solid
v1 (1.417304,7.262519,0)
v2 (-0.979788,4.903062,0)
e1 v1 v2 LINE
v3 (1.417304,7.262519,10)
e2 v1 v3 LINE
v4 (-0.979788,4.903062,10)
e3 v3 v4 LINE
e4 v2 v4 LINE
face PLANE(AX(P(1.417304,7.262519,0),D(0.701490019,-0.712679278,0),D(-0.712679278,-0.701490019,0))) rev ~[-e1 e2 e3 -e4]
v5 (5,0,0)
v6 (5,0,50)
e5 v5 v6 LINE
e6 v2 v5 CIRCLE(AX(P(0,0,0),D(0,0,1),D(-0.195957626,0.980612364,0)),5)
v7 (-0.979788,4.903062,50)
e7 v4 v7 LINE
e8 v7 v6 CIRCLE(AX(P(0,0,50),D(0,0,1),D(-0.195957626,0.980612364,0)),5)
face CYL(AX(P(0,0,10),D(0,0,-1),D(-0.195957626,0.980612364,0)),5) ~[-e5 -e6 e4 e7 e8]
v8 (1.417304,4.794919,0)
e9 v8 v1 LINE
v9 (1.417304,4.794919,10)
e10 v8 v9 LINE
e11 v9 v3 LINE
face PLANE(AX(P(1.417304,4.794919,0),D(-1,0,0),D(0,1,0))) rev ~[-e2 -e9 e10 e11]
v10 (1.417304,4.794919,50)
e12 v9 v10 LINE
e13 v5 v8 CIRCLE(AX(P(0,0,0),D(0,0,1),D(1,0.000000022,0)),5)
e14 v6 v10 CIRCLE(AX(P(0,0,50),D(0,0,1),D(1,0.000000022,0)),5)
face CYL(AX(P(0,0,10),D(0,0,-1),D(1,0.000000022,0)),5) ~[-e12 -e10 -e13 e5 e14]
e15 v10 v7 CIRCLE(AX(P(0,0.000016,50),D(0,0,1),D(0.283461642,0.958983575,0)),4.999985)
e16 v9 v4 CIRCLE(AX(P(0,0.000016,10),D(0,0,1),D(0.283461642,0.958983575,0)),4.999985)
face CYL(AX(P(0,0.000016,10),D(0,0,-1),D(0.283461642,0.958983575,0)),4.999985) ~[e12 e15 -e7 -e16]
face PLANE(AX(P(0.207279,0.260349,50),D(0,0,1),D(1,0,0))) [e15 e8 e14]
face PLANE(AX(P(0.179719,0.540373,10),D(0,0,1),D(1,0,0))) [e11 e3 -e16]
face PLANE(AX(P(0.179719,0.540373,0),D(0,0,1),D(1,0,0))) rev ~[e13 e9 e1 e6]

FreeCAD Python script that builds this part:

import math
import FreeCAD as App
import Part
import Sketcher

V = App.Vector
Q = App.Units.Quantity

doc = App.newDocument("Part")
body = doc.addObject("PartDesign::Body", "Body")

sketch1 = body.newObject("Sketcher::SketchObject", "Sketch")
sketch1.AttachmentSupport = (doc.getObject("XY_Plane"), [""])
sketch1.MapMode = "FlatFace"
sketch1.addGeometry([
    Part.ArcOfCircle(Part.Circle(V(0, 0, 0), V(0, 0, 1), 5), math.radians(101), math.radians(360)),
    Part.ArcOfCircle(Part.Circle(V(0, 0, 0), V(0, 0, 1), 5), math.radians(0), math.radians(74)),
    Part.LineSegment(V(1.4, 4.8, 0), V(1.4, 7.3, 0)),
    Part.LineSegment(V(1.4, 7.3, 0), V(-1, 4.9, 0)),
], False)
sketch1.addConstraint([
    Sketcher.Constraint("Tangent", 0, 2, 1, 1),
    Sketcher.Constraint("Coincident", 1, 2, 2, 1),
    Sketcher.Constraint("Coincident", 2, 2, 3, 1),
    Sketcher.Constraint("Coincident", 3, 2, 0, 1),
    Sketcher.Constraint("Vertical", 2),
    Sketcher.Constraint("Coincident", 0, 3, -1, 1),
    Sketcher.Constraint("Equal", 0, 1),
    Sketcher.Constraint("PointOnObject", 0, 2, -1),
    Sketcher.Constraint("Radius", 0, Q("5 mm")),
    Sketcher.Constraint("DistanceY", 2, 1, 2, 2, Q("2.4676 mm")),
    Sketcher.Constraint("DistanceY", -1, 1, 1, 2, Q("4.794919 mm")),
    Sketcher.Constraint("DistanceX", 3, 2, 2, 2, Q("2.397092 mm")),
])
pad1 = body.newObject("PartDesign::Pad", "Pad")
pad1.Profile = sketch1
pad1.Length = 10

sketch2 = body.newObject("Sketcher::SketchObject", "Sketch001")
sketch2.AttachmentSupport = (doc.getObject("XY_Plane"), [""])
sketch2.MapMode = "FlatFace"
sketch2.AttachmentOffset = App.Placement(V(0, 0, 10), App.Rotation())
sketch2.addGeometry([
    Part.ArcOfCircle(Part.Circle(V(0, 0, 0), V(0, 0, 1), 5), math.radians(101), math.radians(360)),
    Part.ArcOfCircle(Part.Circle(V(0, 0, 0), V(0, 0, 1), 5), math.radians(0), math.radians(74)),
    Part.ArcOfCircle(Part.Circle(V(0, 0, 0), V(0, 0, 1), 5), math.radians(74), math.radians(101)),
], False)
sketch2.addConstraint([
    Sketcher.Constraint("Tangent", 0, 2, 1, 1),
    Sketcher.Constraint("Tangent", 1, 2, 2, 1),
    Sketcher.Constraint("Tangent", 2, 2, 0, 1),
    Sketcher.Constraint("Coincident", 0, 3, -1, 1),
    Sketcher.Constraint("PointOnObject", 0, 2, -1),
    Sketcher.Constraint("Radius", 0, Q("5 mm")),
    Sketcher.Constraint("DistanceY", -1, 1, 1, 2, Q("4.794919 mm")),
    Sketcher.Constraint("DistanceX", 2, 2, -1, 1, Q("0.979788 mm")),
])
pad2 = body.newObject("PartDesign::Pad", "Pad001")
pad2.Profile = sketch2
pad2.Length = 40

doc.recompute()
